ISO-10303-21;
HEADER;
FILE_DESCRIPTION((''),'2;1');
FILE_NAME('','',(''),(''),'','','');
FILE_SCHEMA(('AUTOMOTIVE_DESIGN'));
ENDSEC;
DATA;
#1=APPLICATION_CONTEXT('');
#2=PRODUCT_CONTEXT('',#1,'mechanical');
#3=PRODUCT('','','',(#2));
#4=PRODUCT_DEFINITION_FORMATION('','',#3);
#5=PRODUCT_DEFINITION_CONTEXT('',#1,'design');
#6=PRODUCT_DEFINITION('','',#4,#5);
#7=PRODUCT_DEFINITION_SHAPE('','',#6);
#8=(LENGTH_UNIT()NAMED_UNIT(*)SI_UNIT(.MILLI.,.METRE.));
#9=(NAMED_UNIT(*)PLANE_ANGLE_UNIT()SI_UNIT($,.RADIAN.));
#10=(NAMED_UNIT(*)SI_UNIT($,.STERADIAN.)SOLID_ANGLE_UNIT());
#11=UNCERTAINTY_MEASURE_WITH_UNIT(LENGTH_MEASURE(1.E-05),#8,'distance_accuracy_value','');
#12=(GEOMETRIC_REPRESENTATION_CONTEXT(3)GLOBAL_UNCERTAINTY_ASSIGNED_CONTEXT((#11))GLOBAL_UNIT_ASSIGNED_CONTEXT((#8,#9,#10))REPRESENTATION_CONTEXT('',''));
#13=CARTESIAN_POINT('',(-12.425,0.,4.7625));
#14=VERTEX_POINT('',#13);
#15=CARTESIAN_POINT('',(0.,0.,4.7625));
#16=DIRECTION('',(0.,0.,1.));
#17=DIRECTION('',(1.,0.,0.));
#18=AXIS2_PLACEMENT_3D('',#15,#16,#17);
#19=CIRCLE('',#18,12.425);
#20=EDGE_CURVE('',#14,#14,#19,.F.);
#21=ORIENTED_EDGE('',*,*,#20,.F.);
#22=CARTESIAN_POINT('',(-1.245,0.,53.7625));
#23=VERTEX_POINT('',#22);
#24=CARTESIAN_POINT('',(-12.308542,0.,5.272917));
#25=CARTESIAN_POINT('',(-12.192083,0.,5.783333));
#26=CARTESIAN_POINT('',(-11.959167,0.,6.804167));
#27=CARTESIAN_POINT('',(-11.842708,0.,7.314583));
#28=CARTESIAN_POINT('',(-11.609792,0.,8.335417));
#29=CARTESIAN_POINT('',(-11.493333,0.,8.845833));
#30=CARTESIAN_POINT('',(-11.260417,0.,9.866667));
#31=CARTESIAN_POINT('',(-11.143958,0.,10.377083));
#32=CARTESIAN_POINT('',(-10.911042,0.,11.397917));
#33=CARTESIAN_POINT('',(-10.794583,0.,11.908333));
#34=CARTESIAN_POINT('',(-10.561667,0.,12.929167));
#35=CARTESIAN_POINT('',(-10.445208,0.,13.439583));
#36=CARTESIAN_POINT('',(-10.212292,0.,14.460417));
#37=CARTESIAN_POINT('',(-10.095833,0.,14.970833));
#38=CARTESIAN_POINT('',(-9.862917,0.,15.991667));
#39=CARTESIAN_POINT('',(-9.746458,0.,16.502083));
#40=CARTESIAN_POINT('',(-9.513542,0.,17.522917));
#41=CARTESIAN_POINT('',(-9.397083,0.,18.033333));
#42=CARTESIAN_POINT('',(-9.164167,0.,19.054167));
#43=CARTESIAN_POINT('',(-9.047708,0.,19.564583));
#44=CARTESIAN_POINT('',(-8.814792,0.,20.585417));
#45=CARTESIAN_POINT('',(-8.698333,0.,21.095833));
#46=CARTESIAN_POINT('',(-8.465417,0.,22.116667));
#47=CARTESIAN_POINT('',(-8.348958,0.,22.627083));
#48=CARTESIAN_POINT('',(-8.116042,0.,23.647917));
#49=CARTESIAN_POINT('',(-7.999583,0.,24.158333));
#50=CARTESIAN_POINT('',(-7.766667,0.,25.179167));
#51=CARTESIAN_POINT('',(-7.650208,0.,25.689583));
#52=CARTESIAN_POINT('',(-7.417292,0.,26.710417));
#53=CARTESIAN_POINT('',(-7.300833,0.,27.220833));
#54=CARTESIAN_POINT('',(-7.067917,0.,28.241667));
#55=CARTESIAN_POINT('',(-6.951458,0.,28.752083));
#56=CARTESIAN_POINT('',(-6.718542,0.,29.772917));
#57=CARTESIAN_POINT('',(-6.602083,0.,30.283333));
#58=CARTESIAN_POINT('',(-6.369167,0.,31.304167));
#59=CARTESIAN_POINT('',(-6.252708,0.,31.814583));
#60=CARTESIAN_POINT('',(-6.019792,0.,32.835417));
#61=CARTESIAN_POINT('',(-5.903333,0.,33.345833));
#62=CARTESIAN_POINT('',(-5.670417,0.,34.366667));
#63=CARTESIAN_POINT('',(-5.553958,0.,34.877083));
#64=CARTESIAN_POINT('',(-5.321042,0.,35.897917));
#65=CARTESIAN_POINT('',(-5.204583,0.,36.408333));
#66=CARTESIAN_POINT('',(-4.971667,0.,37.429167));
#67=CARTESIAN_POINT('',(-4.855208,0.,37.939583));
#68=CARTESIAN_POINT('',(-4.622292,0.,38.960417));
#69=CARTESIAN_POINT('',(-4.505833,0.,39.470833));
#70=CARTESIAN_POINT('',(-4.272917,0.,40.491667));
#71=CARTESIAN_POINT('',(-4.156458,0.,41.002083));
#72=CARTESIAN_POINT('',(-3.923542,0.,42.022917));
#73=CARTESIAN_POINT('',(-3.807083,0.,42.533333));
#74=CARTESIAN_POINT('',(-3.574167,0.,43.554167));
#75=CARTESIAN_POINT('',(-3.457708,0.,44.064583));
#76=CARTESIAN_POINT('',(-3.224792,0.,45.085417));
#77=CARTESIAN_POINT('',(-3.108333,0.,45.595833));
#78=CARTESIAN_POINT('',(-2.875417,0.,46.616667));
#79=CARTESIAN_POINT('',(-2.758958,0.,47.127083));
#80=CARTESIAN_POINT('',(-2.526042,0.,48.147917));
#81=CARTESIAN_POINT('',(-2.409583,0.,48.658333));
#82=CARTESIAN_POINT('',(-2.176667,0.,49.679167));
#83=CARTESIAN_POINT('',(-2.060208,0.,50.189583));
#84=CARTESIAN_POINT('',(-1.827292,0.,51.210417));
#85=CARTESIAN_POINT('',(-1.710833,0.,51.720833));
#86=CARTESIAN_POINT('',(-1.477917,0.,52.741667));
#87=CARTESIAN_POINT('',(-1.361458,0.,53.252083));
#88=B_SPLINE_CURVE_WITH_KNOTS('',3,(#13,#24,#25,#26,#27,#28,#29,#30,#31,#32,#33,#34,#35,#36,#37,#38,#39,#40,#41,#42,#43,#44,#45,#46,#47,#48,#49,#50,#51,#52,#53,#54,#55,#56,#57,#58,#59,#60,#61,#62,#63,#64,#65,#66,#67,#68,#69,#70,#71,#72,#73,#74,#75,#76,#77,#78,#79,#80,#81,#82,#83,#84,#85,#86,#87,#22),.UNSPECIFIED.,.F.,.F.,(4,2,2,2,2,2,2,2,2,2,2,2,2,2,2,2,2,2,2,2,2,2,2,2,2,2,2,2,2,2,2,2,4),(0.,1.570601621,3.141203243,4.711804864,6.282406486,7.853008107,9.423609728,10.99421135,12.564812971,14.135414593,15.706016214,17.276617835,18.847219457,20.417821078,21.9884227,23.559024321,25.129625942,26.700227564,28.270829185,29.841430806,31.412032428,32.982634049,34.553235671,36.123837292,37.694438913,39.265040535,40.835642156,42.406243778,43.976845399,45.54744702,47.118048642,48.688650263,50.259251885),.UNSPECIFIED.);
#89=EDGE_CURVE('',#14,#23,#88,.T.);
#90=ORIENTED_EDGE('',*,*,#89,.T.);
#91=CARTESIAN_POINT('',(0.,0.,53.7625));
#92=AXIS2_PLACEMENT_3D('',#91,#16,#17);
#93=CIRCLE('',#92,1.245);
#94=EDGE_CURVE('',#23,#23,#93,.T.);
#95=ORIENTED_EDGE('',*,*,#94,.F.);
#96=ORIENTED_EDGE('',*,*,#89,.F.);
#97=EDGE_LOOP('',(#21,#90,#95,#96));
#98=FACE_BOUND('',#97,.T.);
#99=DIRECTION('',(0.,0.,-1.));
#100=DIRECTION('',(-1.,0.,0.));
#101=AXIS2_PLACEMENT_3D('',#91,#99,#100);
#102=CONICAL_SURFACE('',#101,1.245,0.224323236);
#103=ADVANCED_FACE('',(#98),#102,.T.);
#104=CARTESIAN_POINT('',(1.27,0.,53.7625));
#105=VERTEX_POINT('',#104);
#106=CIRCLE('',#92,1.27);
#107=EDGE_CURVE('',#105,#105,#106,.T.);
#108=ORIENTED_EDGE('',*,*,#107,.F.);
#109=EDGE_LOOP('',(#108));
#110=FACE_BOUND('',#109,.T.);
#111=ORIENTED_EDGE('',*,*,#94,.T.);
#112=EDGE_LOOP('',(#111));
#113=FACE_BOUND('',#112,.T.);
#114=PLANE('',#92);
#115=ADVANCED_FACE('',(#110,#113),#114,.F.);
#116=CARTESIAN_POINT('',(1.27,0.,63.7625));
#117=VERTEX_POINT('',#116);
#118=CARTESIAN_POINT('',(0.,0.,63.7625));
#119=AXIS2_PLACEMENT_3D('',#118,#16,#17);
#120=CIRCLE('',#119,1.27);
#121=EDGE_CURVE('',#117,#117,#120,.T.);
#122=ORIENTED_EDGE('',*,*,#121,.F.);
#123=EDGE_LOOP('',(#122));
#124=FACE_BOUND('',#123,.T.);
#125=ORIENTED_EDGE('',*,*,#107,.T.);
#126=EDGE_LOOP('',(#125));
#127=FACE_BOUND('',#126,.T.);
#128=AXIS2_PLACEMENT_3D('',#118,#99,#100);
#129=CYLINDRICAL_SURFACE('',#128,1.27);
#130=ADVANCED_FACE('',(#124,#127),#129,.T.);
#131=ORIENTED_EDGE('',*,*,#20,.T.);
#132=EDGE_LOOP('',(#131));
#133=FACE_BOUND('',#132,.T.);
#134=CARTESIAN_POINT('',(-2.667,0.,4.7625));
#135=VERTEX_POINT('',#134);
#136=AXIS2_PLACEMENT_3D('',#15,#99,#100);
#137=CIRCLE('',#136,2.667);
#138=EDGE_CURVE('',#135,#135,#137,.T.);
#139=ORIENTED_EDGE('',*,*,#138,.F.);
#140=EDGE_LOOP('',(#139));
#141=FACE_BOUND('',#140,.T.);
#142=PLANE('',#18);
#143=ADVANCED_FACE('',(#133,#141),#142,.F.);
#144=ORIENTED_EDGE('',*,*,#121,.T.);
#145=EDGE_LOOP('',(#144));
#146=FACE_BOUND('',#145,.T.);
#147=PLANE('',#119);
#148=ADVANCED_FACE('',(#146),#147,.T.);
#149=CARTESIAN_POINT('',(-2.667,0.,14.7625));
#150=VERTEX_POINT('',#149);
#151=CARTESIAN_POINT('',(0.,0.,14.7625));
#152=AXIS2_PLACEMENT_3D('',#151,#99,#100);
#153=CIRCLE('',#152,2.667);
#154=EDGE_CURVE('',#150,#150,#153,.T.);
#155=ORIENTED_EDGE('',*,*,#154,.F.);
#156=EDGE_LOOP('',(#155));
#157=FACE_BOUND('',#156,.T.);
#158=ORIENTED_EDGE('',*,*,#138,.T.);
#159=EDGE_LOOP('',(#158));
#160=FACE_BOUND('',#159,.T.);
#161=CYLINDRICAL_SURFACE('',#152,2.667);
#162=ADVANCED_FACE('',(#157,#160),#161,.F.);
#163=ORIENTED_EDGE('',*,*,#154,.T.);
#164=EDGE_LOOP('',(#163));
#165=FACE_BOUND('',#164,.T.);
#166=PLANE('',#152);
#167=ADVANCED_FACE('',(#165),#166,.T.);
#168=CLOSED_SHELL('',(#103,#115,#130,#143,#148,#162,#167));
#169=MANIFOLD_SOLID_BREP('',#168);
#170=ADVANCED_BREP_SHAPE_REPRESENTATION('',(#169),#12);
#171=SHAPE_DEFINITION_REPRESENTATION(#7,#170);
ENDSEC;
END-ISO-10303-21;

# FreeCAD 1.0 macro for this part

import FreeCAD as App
import Part
import Sketcher
from FreeCAD import Vector
Q = App.Units.Quantity


def edges_at(feature, points):
    """Names of the edges that pass closest to the given points."""
    edges = feature.Shape.Edges
    near = lambda p: min(range(len(edges)), key=lambda i: edges[i].distToShape(Part.Vertex(*p))[0])
    return sorted({f"Edge{near(p) + 1}" for p in points})


def add_polygon(sketch, points):
    """Adds a closed chain of lines whose ends are joined by coincident constraints."""
    first, n = sketch.GeometryCount, len(points)
    for a, b in zip(points, points[1:] + points[:1]):
        sketch.addGeometry(Part.LineSegment(App.Vector(*a, 0), App.Vector(*b, 0)), False)
    for i in range(n):
        sketch.addConstraint(Sketcher.Constraint("Coincident", first + i, 2, first + (i + 1) % n, 1))

doc = App.newDocument("Part")
body = doc.addObject("PartDesign::Body", "Body")

# Sketch on XY plane
sketch1 = body.newObject("Sketcher::SketchObject", "Sketch")
sketch1.AttachmentSupport = (doc.getObject("XY_Plane"), [""])
sketch1.MapMode = "FlatFace"
add_polygon(sketch1, [(-35.56, 35.56), (-35.56, -35.56), (35.56, -35.56), (35.56, 35.56)])  # lines 0-3
sketch1.addConstraint([
    Sketcher.Constraint("Vertical", 0),
    Sketcher.Constraint("Horizontal", 1),
    Sketcher.Constraint("Vertical", 2),
    Sketcher.Constraint("Horizontal", 3),
    Sketcher.Constraint("Symmetric", 0, 2, 2, 2, -1, 1),
    Sketcher.Constraint("Equal", 3, 0),
    Sketcher.Constraint("DistanceX", 1, 1, 1, 2, Q("2.8 in")),
])
pad1 = body.newObject("PartDesign::Pad", "Pad")
pad1.Profile = sketch1
pad1.Length = Q("0.1875 in")

# Sketch on XY plane
sketch2 = body.newObject("Sketcher::SketchObject", "Sketch001")
sketch2.AttachmentSupport = (doc.getObject("XY_Plane"), [""])
sketch2.MapMode = "FlatFace"
sketch2.AttachmentOffset = App.Placement(Vector(0, 0, 0.1875 * 25.4), App.Rotation())
sketch2.addGeometry([
    Part.Circle(Vector(-30.48, 30.48, 0), Vector(0, 0, 1), 3.4925),
    Part.Circle(Vector(30.48, 30.48, 0), Vector(0, 0, 1), 3.4925),
], False)
sketch2.addConstraint([
    Sketcher.Constraint("Equal", 0, 1),
    Sketcher.Constraint("Symmetric", 0, 3, 1, 3, -2),
    Sketcher.Constraint("Diameter", 0, Q("0.275 in")),
    Sketcher.Constraint("DistanceX", 0, 3, -1, 1, Q("1.2 in")),
    Sketcher.Constraint("DistanceY", -1, 1, 0, 3, Q("1.2 in")),
])
pocket1 = body.newObject("PartDesign::Pocket", "Pocket")
pocket1.Profile = sketch2
pocket1.Type = "ThroughAll"
doc.recompute()

mirrored = body.newObject("PartDesign::Mirrored", "Mirrored")
mirrored.Originals = [pocket1]
mirrored.MirrorPlane = (doc.getObject("XZ_Plane"), [""])
body.Tip = mirrored

# Sketch on XY plane
sketch3 = body.newObject("Sketcher::SketchObject", "Sketch002")
sketch3.AttachmentSupport = (doc.getObject("XY_Plane"), [""])
sketch3.MapMode = "FlatFace"
sketch3.AttachmentOffset = App.Placement(Vector(0, 0, 0.1875 * 25.4), App.Rotation())
sketch3.addGeometry(Part.Circle(Vector(0, 0, 0), Vector(0, 0, 1), 12.425), False)
sketch3.addConstraint([
    Sketcher.Constraint("Coincident", 0, 3, -1, 1),
    Sketcher.Constraint("Diameter", 0, Q("24.85 mm")),
])
pad2 = body.newObject("PartDesign::Pad", "Pad001")
pad2.Profile = sketch3
pad2.Length = 49

# Sketch on YZ plane
sketch4 = body.newObject("Sketcher::SketchObject", "Sketch003")
sketch4.AttachmentSupport = (doc.getObject("YZ_Plane"), [""])
sketch4.MapMode = "FlatFace"
add_polygon(sketch4, [(1.245, 53.7625), (12.425, 4.7625), (12.425, 53.7625)])  # lines 0-2
sketch4.addConstraint([
    Sketcher.Constraint("Vertical", 1),
    Sketcher.Constraint("Horizontal", 2),
    Sketcher.Constraint("DistanceY", -1, 1, 0, 2, Q("0.1875 in")),
    Sketcher.Constraint("DistanceX", 2, 2, 2, 1, Q("11.18 mm")),
    Sketcher.Constraint("DistanceY", 1, 1, 1, 2, Q("49 mm")),
    Sketcher.Constraint("DistanceX", -1, 1, 0, 2, Q("12.425 mm")),
])
groove = body.newObject("PartDesign::Groove", "Groove")
groove.Profile = sketch4
groove.ReferenceAxis = (sketch4, ["V_Axis"])
groove.Angle = 360

# Sketch on XY plane
sketch5 = body.newObject("Sketcher::SketchObject", "Sketch004")
sketch5.AttachmentSupport = (doc.getObject("XY_Plane"), [""])
sketch5.MapMode = "FlatFace"
sketch5.AttachmentOffset = App.Placement(Vector(0, 0, 53.7625), App.Rotation())
sketch5.addGeometry(Part.Circle(Vector(0, 0, 0), Vector(0, 0, 1), 1.27), False)
sketch5.addConstraint([
    Sketcher.Constraint("Coincident", 0, 3, -1, 1),
    Sketcher.Constraint("Diameter", 0, Q("0.1 in")),
])
pad3 = body.newObject("PartDesign::Pad", "Pad002")
pad3.Profile = sketch5
pad3.Length = 10
doc.recompute()

fillet = body.newObject("PartDesign::Fillet", "Fillet")
fillet.Base = (pad3, edges_at(pad3, [
    (-35.56, 35.56, 2.381),
    (35.56, 35.56, 2.381),
    (35.56, -35.56, 2.381),
    (-35.56, -35.56, 2.381),
]))
fillet.Radius = 2.5

# Sketch on XY plane
sketch6 = body.newObject("Sketcher::SketchObject", "Sketch005")
sketch6.AttachmentSupport = (doc.getObject("XY_Plane"), [""])
sketch6.MapMode = "FlatFace"
add_polygon(sketch6, [(43.081576, 46.817094), (43.081576, -46.817094), (-43.081576, -46.817094), (-43.081576, 46.817094)])  # lines 0-3
sketch6.addConstraint([
    Sketcher.Constraint("Vertical", 0),
    Sketcher.Constraint("Horizontal", 1),
    Sketcher.Constraint("Vertical", 2),
    Sketcher.Constraint("Horizontal", 3),
    Sketcher.Constraint("Symmetric", 0, 2, 2, 2, -1, 1),
    Sketcher.Constraint("DistanceX", 1, 2, 1, 1, Q("86.163151 mm")),
    Sketcher.Constraint("DistanceY", 0, 2, 0, 1, Q("93.634188 mm")),
])
pocket2 = body.newObject("PartDesign::Pocket", "Pocket001")
pocket2.Profile = sketch6
pocket2.Length = Q("0.1875 in")
pocket2.Reversed = True

# Sketch on XY plane
sketch7 = body.newObject("Sketcher::SketchObject", "Sketch006")
sketch7.AttachmentSupport = (doc.getObject("XY_Plane"), [""])
sketch7.MapMode = "FlatFace"
sketch7.AttachmentOffset = App.Placement(Vector(0, 0, 0.1875 * 25.4), App.Rotation())
sketch7.addGeometry(Part.Circle(Vector(0, 0, 0), Vector(0, 0, 1), 2.667), False)
sketch7.addConstraint([
    Sketcher.Constraint("Coincident", 0, 3, -1, 1),
    Sketcher.Constraint("Diameter", 0, Q("0.21 in")),
])
pocket3 = body.newObject("PartDesign::Pocket", "Pocket002")
pocket3.Profile = sketch7
pocket3.Length = 10
pocket3.Reversed = True

doc.recompute()
